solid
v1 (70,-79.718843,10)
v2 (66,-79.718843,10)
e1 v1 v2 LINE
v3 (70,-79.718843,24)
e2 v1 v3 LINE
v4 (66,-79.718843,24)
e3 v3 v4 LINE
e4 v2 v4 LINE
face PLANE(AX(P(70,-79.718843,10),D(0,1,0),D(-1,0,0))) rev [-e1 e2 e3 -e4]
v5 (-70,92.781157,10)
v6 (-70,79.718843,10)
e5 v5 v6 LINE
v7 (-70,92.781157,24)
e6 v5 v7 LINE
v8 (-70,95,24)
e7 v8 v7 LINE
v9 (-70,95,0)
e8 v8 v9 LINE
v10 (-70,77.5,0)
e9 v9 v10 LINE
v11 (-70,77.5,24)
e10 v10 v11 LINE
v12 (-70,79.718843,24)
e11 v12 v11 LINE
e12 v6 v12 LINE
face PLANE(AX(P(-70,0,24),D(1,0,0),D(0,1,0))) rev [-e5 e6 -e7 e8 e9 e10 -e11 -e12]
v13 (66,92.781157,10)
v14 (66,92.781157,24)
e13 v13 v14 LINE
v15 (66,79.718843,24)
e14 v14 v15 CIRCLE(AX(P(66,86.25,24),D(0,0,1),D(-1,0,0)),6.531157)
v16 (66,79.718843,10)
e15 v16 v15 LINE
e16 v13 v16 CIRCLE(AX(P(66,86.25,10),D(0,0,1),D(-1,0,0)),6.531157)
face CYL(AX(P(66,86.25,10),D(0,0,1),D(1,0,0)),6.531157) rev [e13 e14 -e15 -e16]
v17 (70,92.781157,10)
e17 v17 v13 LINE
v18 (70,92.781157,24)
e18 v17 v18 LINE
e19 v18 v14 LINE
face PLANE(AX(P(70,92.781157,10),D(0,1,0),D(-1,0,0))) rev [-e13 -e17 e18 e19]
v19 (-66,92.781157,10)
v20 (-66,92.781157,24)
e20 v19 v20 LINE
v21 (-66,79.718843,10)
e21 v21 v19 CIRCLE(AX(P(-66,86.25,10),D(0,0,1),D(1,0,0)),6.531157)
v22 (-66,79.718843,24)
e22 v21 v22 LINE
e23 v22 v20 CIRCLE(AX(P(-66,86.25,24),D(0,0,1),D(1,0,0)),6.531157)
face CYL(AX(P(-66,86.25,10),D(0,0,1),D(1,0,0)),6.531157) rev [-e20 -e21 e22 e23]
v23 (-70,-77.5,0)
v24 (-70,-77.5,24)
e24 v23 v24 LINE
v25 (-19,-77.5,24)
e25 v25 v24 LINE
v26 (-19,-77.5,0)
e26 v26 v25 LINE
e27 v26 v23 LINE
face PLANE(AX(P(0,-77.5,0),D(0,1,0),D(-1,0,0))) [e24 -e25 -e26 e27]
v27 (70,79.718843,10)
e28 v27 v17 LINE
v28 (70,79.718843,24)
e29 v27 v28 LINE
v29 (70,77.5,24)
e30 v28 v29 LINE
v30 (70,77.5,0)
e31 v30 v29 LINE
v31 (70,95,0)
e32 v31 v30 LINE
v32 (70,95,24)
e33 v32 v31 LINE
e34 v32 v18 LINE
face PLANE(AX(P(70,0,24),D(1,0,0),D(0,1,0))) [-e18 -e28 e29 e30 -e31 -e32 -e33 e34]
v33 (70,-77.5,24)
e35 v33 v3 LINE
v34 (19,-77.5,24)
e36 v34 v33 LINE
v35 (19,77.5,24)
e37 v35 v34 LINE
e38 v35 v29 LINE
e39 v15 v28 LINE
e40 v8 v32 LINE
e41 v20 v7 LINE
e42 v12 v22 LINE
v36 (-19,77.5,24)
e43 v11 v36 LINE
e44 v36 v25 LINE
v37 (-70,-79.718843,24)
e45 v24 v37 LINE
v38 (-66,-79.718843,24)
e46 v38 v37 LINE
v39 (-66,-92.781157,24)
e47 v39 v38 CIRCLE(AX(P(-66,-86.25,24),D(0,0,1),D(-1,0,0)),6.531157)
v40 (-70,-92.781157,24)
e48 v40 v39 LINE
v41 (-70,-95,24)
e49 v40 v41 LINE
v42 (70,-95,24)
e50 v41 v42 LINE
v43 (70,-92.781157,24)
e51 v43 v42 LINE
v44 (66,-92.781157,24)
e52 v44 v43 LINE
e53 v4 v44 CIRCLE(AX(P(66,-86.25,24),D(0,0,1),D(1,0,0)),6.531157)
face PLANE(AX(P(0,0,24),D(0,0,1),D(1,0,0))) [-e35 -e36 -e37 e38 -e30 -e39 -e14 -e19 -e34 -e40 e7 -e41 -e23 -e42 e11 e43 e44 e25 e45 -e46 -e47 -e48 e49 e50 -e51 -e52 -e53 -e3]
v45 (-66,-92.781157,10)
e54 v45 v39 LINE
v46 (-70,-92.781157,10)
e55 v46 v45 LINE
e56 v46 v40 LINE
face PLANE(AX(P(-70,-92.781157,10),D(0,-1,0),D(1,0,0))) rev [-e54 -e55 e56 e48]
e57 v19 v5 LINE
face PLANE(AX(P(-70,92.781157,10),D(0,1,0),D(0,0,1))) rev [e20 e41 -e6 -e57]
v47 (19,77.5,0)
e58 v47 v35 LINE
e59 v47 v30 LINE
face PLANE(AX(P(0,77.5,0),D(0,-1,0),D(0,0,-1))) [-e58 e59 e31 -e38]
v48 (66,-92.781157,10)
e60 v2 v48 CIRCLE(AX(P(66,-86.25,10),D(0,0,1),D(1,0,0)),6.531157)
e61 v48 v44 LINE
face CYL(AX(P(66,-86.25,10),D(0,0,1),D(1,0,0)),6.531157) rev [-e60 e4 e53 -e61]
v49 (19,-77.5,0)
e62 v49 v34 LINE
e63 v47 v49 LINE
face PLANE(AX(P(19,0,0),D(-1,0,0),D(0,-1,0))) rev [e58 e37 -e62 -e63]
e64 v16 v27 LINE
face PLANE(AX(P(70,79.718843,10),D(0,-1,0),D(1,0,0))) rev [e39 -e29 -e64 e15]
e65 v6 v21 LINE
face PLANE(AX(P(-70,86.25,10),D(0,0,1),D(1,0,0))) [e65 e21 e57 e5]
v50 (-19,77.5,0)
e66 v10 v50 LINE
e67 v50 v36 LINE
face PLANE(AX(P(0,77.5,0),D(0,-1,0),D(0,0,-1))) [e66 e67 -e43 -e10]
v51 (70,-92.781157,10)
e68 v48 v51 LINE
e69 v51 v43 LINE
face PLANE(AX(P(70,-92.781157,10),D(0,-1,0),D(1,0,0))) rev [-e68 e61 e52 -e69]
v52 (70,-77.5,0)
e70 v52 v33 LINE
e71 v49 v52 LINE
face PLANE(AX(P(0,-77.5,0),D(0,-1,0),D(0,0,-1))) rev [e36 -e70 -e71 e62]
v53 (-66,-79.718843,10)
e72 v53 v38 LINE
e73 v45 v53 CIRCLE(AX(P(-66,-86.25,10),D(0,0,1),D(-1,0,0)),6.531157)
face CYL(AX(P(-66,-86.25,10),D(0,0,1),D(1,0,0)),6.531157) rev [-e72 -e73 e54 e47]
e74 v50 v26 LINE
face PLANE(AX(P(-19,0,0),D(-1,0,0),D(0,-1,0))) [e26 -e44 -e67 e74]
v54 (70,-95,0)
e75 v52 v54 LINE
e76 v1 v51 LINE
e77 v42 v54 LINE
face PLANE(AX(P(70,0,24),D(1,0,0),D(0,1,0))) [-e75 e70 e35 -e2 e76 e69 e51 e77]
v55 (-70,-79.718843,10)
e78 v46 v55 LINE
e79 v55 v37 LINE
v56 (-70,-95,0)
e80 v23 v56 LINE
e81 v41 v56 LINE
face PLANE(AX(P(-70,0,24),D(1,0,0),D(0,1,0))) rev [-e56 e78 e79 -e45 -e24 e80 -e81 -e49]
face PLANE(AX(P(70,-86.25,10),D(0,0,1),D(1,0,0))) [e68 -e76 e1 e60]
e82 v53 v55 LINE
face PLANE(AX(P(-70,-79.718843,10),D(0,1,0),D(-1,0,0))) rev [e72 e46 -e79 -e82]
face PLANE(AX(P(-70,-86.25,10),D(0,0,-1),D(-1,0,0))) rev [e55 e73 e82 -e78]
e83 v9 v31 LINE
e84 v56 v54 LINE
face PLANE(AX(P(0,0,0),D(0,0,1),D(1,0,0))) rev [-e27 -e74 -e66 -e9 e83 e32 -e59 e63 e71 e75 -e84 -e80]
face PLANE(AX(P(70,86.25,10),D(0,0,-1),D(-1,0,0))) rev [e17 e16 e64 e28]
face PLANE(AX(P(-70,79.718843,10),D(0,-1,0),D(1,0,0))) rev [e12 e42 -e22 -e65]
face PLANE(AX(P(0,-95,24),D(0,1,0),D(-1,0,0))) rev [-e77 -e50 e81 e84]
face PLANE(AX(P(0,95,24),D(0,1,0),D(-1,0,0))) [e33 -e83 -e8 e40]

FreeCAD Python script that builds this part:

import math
import FreeCAD as App
import Part
import Sketcher
Q = App.Units.Quantity

doc = App.newDocument("Part")
body = doc.addObject("PartDesign::Body", "Body")

# Sketch on XY plane
sketch1 = doc.addObject("Sketcher::SketchObject", "Sketch")
body.addObject(sketch1)
sketch1.AttachmentSupport = (doc.XY_Plane, [""])
sketch1.MapMode = "FlatFace"
sketch1.addGeometry(Part.LineSegment(App.Vector(70, -95, 0), App.Vector(70, 95, 0)), False)
sketch1.addGeometry(Part.LineSegment(App.Vector(70, 95, 0), App.Vector(-70, 95, 0)), False)
sketch1.addGeometry(Part.LineSegment(App.Vector(-70, 95, 0), App.Vector(-70, -95, 0)), False)
sketch1.addGeometry(Part.LineSegment(App.Vector(-70, -95, 0), App.Vector(70, -95, 0)), False)
sketch1.addConstraint(Sketcher.Constraint("Coincident", 0, 2, 1, 1))
sketch1.addConstraint(Sketcher.Constraint("Coincident", 1, 2, 2, 1))
sketch1.addConstraint(Sketcher.Constraint("Coincident", 2, 2, 3, 1))
sketch1.addConstraint(Sketcher.Constraint("Coincident", 3, 2, 0, 1))
sketch1.addConstraint(Sketcher.Constraint("Vertical", 0))
sketch1.addConstraint(Sketcher.Constraint("Horizontal", 1))
sketch1.addConstraint(Sketcher.Constraint("Vertical", 2))
sketch1.addConstraint(Sketcher.Constraint("Horizontal", 3))
sketch1.addConstraint(Sketcher.Constraint("Symmetric", 0, 2, 2, 2, -1, 1))
sketch1.addConstraint(Sketcher.Constraint("DistanceX", 1, 2, 1, 1, Q("140 mm")))
sketch1.addConstraint(Sketcher.Constraint("DistanceY", 0, 1, 0, 2, Q("190 mm")))
pad1 = doc.addObject("PartDesign::Pad", "Pad")
body.addObject(pad1)
pad1.Profile = sketch1
pad1.Length = 24

# Sketch on XY plane
sketch2 = doc.addObject("Sketcher::SketchObject", "Sketch001")
body.addObject(sketch2)
sketch2.AttachmentSupport = (doc.XY_Plane, [""])
sketch2.MapMode = "FlatFace"
sketch2.AttachmentOffset = App.Placement(App.Vector(0, 0, 24), App.Rotation())
sketch2.addGeometry(Part.LineSegment(App.Vector(-70, 78, 0), App.Vector(-70, -78, 0)), False)
sketch2.addGeometry(Part.LineSegment(App.Vector(-70, -78, 0), App.Vector(-19, -78, 0)), False)
sketch2.addGeometry(Part.LineSegment(App.Vector(-19, -78, 0), App.Vector(-19, 78, 0)), False)
sketch2.addGeometry(Part.LineSegment(App.Vector(-19, 78, 0), App.Vector(-70, 78, 0)), False)
sketch2.addGeometry(Part.LineSegment(App.Vector(19, 78, 0), App.Vector(19, -78, 0)), False)
sketch2.addGeometry(Part.LineSegment(App.Vector(19, -78, 0), App.Vector(70, -78, 0)), False)
sketch2.addGeometry(Part.LineSegment(App.Vector(70, -78, 0), App.Vector(70, 78, 0)), False)
sketch2.addGeometry(Part.LineSegment(App.Vector(70, 78, 0), App.Vector(19, 78, 0)), False)
sketch2.addConstraint(Sketcher.Constraint("Coincident", 0, 2, 1, 1))
sketch2.addConstraint(Sketcher.Constraint("Coincident", 1, 2, 2, 1))
sketch2.addConstraint(Sketcher.Constraint("Coincident", 2, 2, 3, 1))
sketch2.addConstraint(Sketcher.Constraint("Coincident", 3, 2, 0, 1))
sketch2.addConstraint(Sketcher.Constraint("Coincident", 4, 2, 5, 1))
sketch2.addConstraint(Sketcher.Constraint("Coincident", 5, 2, 6, 1))
sketch2.addConstraint(Sketcher.Constraint("Coincident", 6, 2, 7, 1))
sketch2.addConstraint(Sketcher.Constraint("Coincident", 7, 2, 4, 1))
sketch2.addConstraint(Sketcher.Constraint("Vertical", 0))
sketch2.addConstraint(Sketcher.Constraint("Horizontal", 1))
sketch2.addConstraint(Sketcher.Constraint("Vertical", 2))
sketch2.addConstraint(Sketcher.Constraint("Horizontal", 3))
sketch2.addConstraint(Sketcher.Constraint("Vertical", 4))
sketch2.addConstraint(Sketcher.Constraint("Horizontal", 5))
sketch2.addConstraint(Sketcher.Constraint("Vertical", 6))
sketch2.addConstraint(Sketcher.Constraint("Horizontal", 7))
sketch2.addConstraint(Sketcher.Constraint("Symmetric", 2, 2, 4, 2, -1, 1))
sketch2.addConstraint(Sketcher.Constraint("Symmetric", 0, 2, 6, 2, -1, 1))
sketch2.addConstraint(Sketcher.Constraint("Horizontal", 1, 2, 4, 2))
sketch2.addConstraint(Sketcher.Constraint("DistanceX", 1, 1, 1, 2, Q("51 mm")))
sketch2.addConstraint(Sketcher.Constraint("DistanceY", 0, 2, 0, 1, Q("155 mm")))
sketch2.addConstraint(Sketcher.Constraint("DistanceX", 0, 2, -1, 1, Q("70 mm")))
pocket1 = doc.addObject("PartDesign::Pocket", "Pocket")
body.addObject(pocket1)
pocket1.Profile = sketch2
pocket1.Length = 24

# Sketch on XY plane
sketch3 = doc.addObject("Sketcher::SketchObject", "Sketch002")
body.addObject(sketch3)
sketch3.AttachmentSupport = (doc.XY_Plane, [""])
sketch3.MapMode = "FlatFace"
sketch3.AttachmentOffset = App.Placement(App.Vector(0, 0, 24), App.Rotation())
sketch3.addGeometry(Part.LineSegment(App.Vector(66, -92.8, 0), App.Vector(70, -92.8, 0)), False)
sketch3.addGeometry(Part.ArcOfCircle(Part.Circle(App.Vector(70, -86.2, 0), App.Vector(0, 0, 1), 6.5), math.radians(-90), math.radians(90)), False)
sketch3.addGeometry(Part.LineSegment(App.Vector(70, -79.7, 0), App.Vector(66, -79.7, 0)), False)
sketch3.addGeometry(Part.ArcOfCircle(Part.Circle(App.Vector(66, -86.2, 0), App.Vector(0, 0, 1), 6.5), math.radians(90), math.radians(270)), False)
sketch3.addGeometry(Part.LineSegment(App.Vector(70, 92.8, 0), App.Vector(66, 92.8, 0)), False)
sketch3.addGeometry(Part.ArcOfCircle(Part.Circle(App.Vector(66, 86.2, 0), App.Vector(0, 0, 1), 6.5), math.radians(90), math.radians(270)), False)
sketch3.addGeometry(Part.LineSegment(App.Vector(66, 79.7, 0), App.Vector(70, 79.7, 0)), False)
sketch3.addGeometry(Part.ArcOfCircle(Part.Circle(App.Vector(70, 86.2, 0), App.Vector(0, 0, 1), 6.5), math.radians(-90), math.radians(90)), False)
sketch3.addGeometry(Part.LineSegment(App.Vector(-66, 92.8, 0), App.Vector(-70, 92.8, 0)), False)
sketch3.addGeometry(Part.ArcOfCircle(Part.Circle(App.Vector(-70, 86.2, 0), App.Vector(0, 0, 1), 6.5), math.radians(90), math.radians(270)), False)
sketch3.addGeometry(Part.LineSegment(App.Vector(-70, 79.7, 0), App.Vector(-66, 79.7, 0)), False)
sketch3.addGeometry(Part.ArcOfCircle(Part.Circle(App.Vector(-66, 86.2, 0), App.Vector(0, 0, 1), 6.5), math.radians(-90), math.radians(90)), False)
sketch3.addGeometry(Part.LineSegment(App.Vector(-70, -92.8, 0), App.Vector(-66, -92.8, 0)), False)
sketch3.addGeometry(Part.ArcOfCircle(Part.Circle(App.Vector(-66, -86.2, 0), App.Vector(0, 0, 1), 6.5), math.radians(-90), math.radians(90)), False)
sketch3.addGeometry(Part.LineSegment(App.Vector(-66, -79.7, 0), App.Vector(-70, -79.7, 0)), False)
sketch3.addGeometry(Part.ArcOfCircle(Part.Circle(App.Vector(-70, -86.2, 0), App.Vector(0, 0, 1), 6.5), math.radians(90), math.radians(270)), False)
sketch3.addConstraint(Sketcher.Constraint("Tangent", 0, 2, 1, 1))
sketch3.addConstraint(Sketcher.Constraint("Tangent", 1, 2, 2, 1))
sketch3.addConstraint(Sketcher.Constraint("Tangent", 2, 2, 3, 1))
sketch3.addConstraint(Sketcher.Constraint("Tangent", 3, 2, 0, 1))
sketch3.addConstraint(Sketcher.Constraint("Tangent", 4, 2, 5, 1))
sketch3.addConstraint(Sketcher.Constraint("Tangent", 5, 2, 6, 1))
sketch3.addConstraint(Sketcher.Constraint("Tangent", 6, 2, 7, 1))
sketch3.addConstraint(Sketcher.Constraint("Tangent", 7, 2, 4, 1))
sketch3.addConstraint(Sketcher.Constraint("Tangent", 8, 2, 9, 1))
sketch3.addConstraint(Sketcher.Constraint("Tangent", 9, 2, 10, 1))
sketch3.addConstraint(Sketcher.Constraint("Tangent", 10, 2, 11, 1))
sketch3.addConstraint(Sketcher.Constraint("Tangent", 11, 2, 8, 1))
sketch3.addConstraint(Sketcher.Constraint("Tangent", 12, 2, 13, 1))
sketch3.addConstraint(Sketcher.Constraint("Tangent", 13, 2, 14, 1))
sketch3.addConstraint(Sketcher.Constraint("Tangent", 14, 2, 15, 1))
sketch3.addConstraint(Sketcher.Constraint("Tangent", 15, 2, 12, 1))
sketch3.addConstraint(Sketcher.Constraint("Horizontal", 0))
sketch3.addConstraint(Sketcher.Constraint("Horizontal", 2))
sketch3.addConstraint(Sketcher.Constraint("Horizontal", 4))
sketch3.addConstraint(Sketcher.Constraint("Horizontal", 6))
sketch3.addConstraint(Sketcher.Constraint("Horizontal", 8))
sketch3.addConstraint(Sketcher.Constraint("Horizontal", 10))
sketch3.addConstraint(Sketcher.Constraint("Horizontal", 12))
sketch3.addConstraint(Sketcher.Constraint("Horizontal", 14))
sketch3.addConstraint(Sketcher.Constraint("Equal", 3, 5))
sketch3.addConstraint(Sketcher.Constraint("Equal", 7, 9))
sketch3.addConstraint(Sketcher.Constraint("Equal", 11, 13))
sketch3.addConstraint(Sketcher.Constraint("Symmetric", 1, 3, 9, 3, -1, 1))
sketch3.addConstraint(Sketcher.Constraint("Symmetric", 5, 3, 13, 3, -1, 1))
sketch3.addConstraint(Sketcher.Constraint("Symmetric", 7, 3, 9, 3, -2))
sketch3.addConstraint(Sketcher.Constraint("Vertical", 3, 3, 5, 3))
sketch3.addConstraint(Sketcher.Constraint("Vertical", 11, 3, 13, 3))
sketch3.addConstraint(Sketcher.Constraint("Vertical", 9, 3, 15, 3))
sketch3.addConstraint(Sketcher.Constraint("DistanceX", 0, 1, 0, 2, Q("4 mm")))
sketch3.addConstraint(Sketcher.Constraint("DistanceX", -1, 1, 1, 3, Q("70 mm")))
sketch3.addConstraint(Sketcher.Constraint("DistanceY", 3, 3, 5, 3, Q("172.5 mm")))
sketch3.addConstraint(Sketcher.Constraint("Radius", 1, Q("6.531157 mm")))
pocket2 = doc.addObject("PartDesign::Pocket", "Pocket001")
body.addObject(pocket2)
pocket2.Profile = sketch3
pocket2.Length = 14

doc.recompute()
